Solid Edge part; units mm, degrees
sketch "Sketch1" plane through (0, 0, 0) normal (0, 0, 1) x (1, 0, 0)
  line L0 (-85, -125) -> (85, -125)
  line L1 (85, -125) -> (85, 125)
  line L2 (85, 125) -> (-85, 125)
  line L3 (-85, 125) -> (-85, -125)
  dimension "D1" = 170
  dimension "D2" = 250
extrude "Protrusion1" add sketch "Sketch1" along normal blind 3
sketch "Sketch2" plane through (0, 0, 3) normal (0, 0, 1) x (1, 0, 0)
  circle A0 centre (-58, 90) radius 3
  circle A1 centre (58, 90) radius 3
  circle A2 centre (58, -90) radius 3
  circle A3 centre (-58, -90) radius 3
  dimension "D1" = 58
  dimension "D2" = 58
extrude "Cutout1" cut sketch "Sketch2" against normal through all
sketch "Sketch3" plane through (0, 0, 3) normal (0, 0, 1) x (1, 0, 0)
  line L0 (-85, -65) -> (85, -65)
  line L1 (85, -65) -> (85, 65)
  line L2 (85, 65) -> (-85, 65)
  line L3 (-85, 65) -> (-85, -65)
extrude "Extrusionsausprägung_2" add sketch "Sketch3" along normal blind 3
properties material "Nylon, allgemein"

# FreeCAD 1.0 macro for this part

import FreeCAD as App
import Part
import Sketcher

doc = App.newDocument("Part")
body = doc.addObject("PartDesign::Body", "Body")

sketch1 = body.newObject("Sketcher::SketchObject", "Sketch")
sketch1.AttachmentSupport = (doc.getObject("XY_Plane"), [""])
sketch1.MapMode = "FlatFace"
sketch1.addGeometry([
    Part.LineSegment(App.Vector(-85, 125, 0), App.Vector(-85, -125, 0)),
    Part.LineSegment(App.Vector(-85, -125, 0), App.Vector(85, -125, 0)),
    Part.LineSegment(App.Vector(85, -125, 0), App.Vector(85, 125, 0)),
    Part.LineSegment(App.Vector(85, 125, 0), App.Vector(-85, 125, 0)),
], False)
sketch1.addConstraint([
    Sketcher.Constraint("Coincident", 0, 2, 1, 1),
    Sketcher.Constraint("Coincident", 1, 2, 2, 1),
    Sketcher.Constraint("Coincident", 2, 2, 3, 1),
    Sketcher.Constraint("Coincident", 3, 2, 0, 1),
    Sketcher.Constraint("Vertical", 0),
    Sketcher.Constraint("Horizontal", 1),
    Sketcher.Constraint("Vertical", 2),
    Sketcher.Constraint("Horizontal", 3),
    Sketcher.Constraint("Symmetric", 0, 2, 2, 2, -1, 1),
    Sketcher.Constraint("DistanceX", 0, 2, -1, 1, 85.0),
    Sketcher.Constraint("DistanceY", 0, 2, 0, 1, 250.0),
])
pad1 = body.newObject("PartDesign::Pad", "Pad")
pad1.Profile = sketch1
pad1.Length = 3

sketch2 = body.newObject("Sketcher::SketchObject", "Sketch001")
sketch2.AttachmentSupport = (doc.getObject("XY_Plane"), [""])
sketch2.MapMode = "FlatFace"
sketch2.AttachmentOffset = App.Placement(App.Vector(0, 0, 3), App.Rotation())
sketch2.addGeometry([
    Part.Circle(App.Vector(-58, 90, 0), App.Vector(0, 0, 1), 3),
    Part.Circle(App.Vector(58, 90, 0), App.Vector(0, 0, 1), 3),
    Part.Circle(App.Vector(58, -90, 0), App.Vector(0, 0, 1), 3),
    Part.Circle(App.Vector(-58, -90, 0), App.Vector(0, 0, 1), 3),
], False)
sketch2.addConstraint([
    Sketcher.Constraint("Equal", 0, 1),
    Sketcher.Constraint("Equal", 1, 2),
    Sketcher.Constraint("Equal", 2, 3),
    Sketcher.Constraint("Symmetric", 0, 3, 2, 3, -1, 1),
    Sketcher.Constraint("Symmetric", 1, 3, 3, 3, -1, 1),
    Sketcher.Constraint("Symmetric", 0, 3, 1, 3, -2),
    Sketcher.Constraint("Diameter", 0, 6.0),
    Sketcher.Constraint("DistanceX", 0, 3, -1, 1, 58.0),
    Sketcher.Constraint("DistanceY", -1, 1, 0, 3, 90.0),
])
pocket1 = body.newObject("PartDesign::Pocket", "Pocket")
pocket1.Profile = sketch2
pocket1.Type = "ThroughAll"

sketch3 = body.newObject("Sketcher::SketchObject", "Sketch002")
sketch3.AttachmentSupport = (doc.getObject("XY_Plane"), [""])
sketch3.MapMode = "FlatFace"
sketch3.AttachmentOffset = App.Placement(App.Vector(0, 0, 3), App.Rotation())
sketch3.addGeometry([
    Part.LineSegment(App.Vector(-85, 65, 0), App.Vector(-85, -65, 0)),
    Part.LineSegment(App.Vector(-85, -65, 0), App.Vector(85, -65, 0)),
    Part.LineSegment(App.Vector(85, -65, 0), App.Vector(85, 65, 0)),
    Part.LineSegment(App.Vector(85, 65, 0), App.Vector(-85, 65, 0)),
], False)
sketch3.addConstraint([
    Sketcher.Constraint("Coincident", 0, 2, 1, 1),
    Sketcher.Constraint("Coincident", 1, 2, 2, 1),
    Sketcher.Constraint("Coincident", 2, 2, 3, 1),
    Sketcher.Constraint("Coincident", 3, 2, 0, 1),
    Sketcher.Constraint("Vertical", 0),
    Sketcher.Constraint("Horizontal", 1),
    Sketcher.Constraint("Vertical", 2),
    Sketcher.Constraint("Horizontal", 3),
    Sketcher.Constraint("Symmetric", 0, 2, 2, 2, -1, 1),
    Sketcher.Constraint("DistanceX", 1, 1, 1, 2, 170.0),
    Sketcher.Constraint("DistanceY", 0, 2, 0, 1, 130.0),
])
pad2 = body.newObject("PartDesign::Pad", "Pad001")
pad2.Profile = sketch3
pad2.Length = 3

doc.recompute()
